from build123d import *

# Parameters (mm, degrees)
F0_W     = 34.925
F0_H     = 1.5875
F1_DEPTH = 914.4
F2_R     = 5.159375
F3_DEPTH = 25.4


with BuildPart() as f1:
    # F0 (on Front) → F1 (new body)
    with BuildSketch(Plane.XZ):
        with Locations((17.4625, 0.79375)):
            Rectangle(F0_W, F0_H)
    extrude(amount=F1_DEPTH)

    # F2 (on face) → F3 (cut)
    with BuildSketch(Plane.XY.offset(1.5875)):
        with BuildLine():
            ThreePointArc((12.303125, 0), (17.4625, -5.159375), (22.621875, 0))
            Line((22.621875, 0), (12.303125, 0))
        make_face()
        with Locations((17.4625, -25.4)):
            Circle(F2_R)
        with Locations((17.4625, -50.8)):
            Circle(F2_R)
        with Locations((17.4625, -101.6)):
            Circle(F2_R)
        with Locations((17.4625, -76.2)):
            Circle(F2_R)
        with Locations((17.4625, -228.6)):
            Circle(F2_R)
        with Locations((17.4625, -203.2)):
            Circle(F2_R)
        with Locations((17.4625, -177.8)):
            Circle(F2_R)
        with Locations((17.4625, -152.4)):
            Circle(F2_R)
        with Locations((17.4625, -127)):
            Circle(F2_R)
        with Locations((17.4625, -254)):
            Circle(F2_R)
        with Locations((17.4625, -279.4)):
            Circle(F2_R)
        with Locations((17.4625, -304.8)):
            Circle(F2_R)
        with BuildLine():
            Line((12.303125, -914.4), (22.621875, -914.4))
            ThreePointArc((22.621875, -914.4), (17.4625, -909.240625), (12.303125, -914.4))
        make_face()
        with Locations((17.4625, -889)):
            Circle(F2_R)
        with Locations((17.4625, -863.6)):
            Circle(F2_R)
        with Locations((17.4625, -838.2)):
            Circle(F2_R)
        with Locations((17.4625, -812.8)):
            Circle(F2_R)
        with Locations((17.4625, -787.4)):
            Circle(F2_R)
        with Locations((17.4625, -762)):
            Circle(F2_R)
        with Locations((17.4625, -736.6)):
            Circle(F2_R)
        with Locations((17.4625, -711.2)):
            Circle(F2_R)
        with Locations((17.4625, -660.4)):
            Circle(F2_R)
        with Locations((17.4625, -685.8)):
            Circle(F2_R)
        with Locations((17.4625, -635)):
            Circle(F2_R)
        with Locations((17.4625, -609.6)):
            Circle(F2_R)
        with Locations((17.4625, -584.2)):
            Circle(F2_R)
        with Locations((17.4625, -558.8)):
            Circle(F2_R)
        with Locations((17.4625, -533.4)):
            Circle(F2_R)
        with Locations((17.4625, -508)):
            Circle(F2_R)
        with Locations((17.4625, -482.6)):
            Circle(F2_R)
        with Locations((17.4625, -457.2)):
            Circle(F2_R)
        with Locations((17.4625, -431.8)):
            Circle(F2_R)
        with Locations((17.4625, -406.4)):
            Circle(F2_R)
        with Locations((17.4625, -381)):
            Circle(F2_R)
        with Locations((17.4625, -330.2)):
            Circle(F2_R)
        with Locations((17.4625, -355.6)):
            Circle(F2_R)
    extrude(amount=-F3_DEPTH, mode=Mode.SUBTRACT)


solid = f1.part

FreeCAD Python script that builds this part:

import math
import FreeCAD as App
import Part
import Sketcher
from FreeCAD import Vector
Q = App.Units.Quantity

doc = App.newDocument("Part")
body = doc.addObject("PartDesign::Body", "Body")

# Sketch on XZ plane
sketch1 = doc.addObject("Sketcher::SketchObject", "Sketch")
body.addObject(sketch1)
sketch1.AttachmentSupport = (doc.XZ_Plane, [""])
sketch1.MapMode = "FlatFace"
sketch1.addGeometry(Part.LineSegment(Vector(0, 1.6, 0), Vector(0, 0, 0)), False)
sketch1.addGeometry(Part.LineSegment(Vector(0, 0, 0), Vector(34.9, 0, 0)), False)
sketch1.addGeometry(Part.LineSegment(Vector(34.9, 0, 0), Vector(34.9, 1.6, 0)), False)
sketch1.addGeometry(Part.LineSegment(Vector(34.9, 1.6, 0), Vector(0, 1.6, 0)), False)
sketch1.addConstraint(Sketcher.Constraint("Coincident", 0, 2, 1, 1))
sketch1.addConstraint(Sketcher.Constraint("Coincident", 1, 2, 2, 1))
sketch1.addConstraint(Sketcher.Constraint("Coincident", 2, 2, 3, 1))
sketch1.addConstraint(Sketcher.Constraint("Coincident", 3, 2, 0, 1))
sketch1.addConstraint(Sketcher.Constraint("Vertical", 0))
sketch1.addConstraint(Sketcher.Constraint("Horizontal", 1))
sketch1.addConstraint(Sketcher.Constraint("Vertical", 2))
sketch1.addConstraint(Sketcher.Constraint("Horizontal", 3))
sketch1.addConstraint(Sketcher.Constraint("Coincident", 0, 2, -1, 1))
sketch1.addConstraint(Sketcher.Constraint("DistanceX", 1, 1, 1, 2, Q("1.375 in")))
sketch1.addConstraint(Sketcher.Constraint("DistanceY", 0, 2, 0, 1, Q("0.0625 in")))
pad1 = doc.addObject("PartDesign::Pad", "Pad")
body.addObject(pad1)
pad1.Profile = sketch1
pad1.Length = Q("36 in")

# Sketch on XY plane
sketch2 = doc.addObject("Sketcher::SketchObject", "Sketch001")
body.addObject(sketch2)
sketch2.AttachmentSupport = (doc.XY_Plane, [""])
sketch2.MapMode = "FlatFace"
sketch2.AttachmentOffset = App.Placement(Vector(0, 0, 0.0625 * 25.4), App.Rotation())
sketch2.addGeometry(Part.ArcOfCircle(Part.Circle(Vector(17, 0, 0), Vector(0, 0, 1), 5), math.radians(180), math.radians(360)), False)
sketch2.addGeometry(Part.LineSegment(Vector(23, 0, 0), Vector(12, 0, 0)), False)
sketch2.addGeometry(Part.Circle(Vector(17, -25, 0), Vector(0, 0, 1), 5), False)
sketch2.addGeometry(Part.Circle(Vector(17, -51, 0), Vector(0, 0, 1), 5), False)
sketch2.addGeometry(Part.Circle(Vector(17, -102, 0), Vector(0, 0, 1), 5), False)
sketch2.addGeometry(Part.Circle(Vector(17, -76, 0), Vector(0, 0, 1), 5), False)
sketch2.addGeometry(Part.Circle(Vector(17, -229, 0), Vector(0, 0, 1), 5), False)
sketch2.addGeometry(Part.Circle(Vector(17, -203, 0), Vector(0, 0, 1), 5), False)
sketch2.addGeometry(Part.Circle(Vector(17, -178, 0), Vector(0, 0, 1), 5), False)
sketch2.addGeometry(Part.Circle(Vector(17, -152, 0), Vector(0, 0, 1), 5), False)
sketch2.addGeometry(Part.Circle(Vector(17, -127, 0), Vector(0, 0, 1), 5), False)
sketch2.addGeometry(Part.Circle(Vector(17, -254, 0), Vector(0, 0, 1), 5), False)
sketch2.addGeometry(Part.Circle(Vector(17, -279, 0), Vector(0, 0, 1), 5), False)
sketch2.addGeometry(Part.Circle(Vector(17, -305, 0), Vector(0, 0, 1), 5), False)
sketch2.addGeometry(Part.LineSegment(Vector(12, -914, 0), Vector(23, -914, 0)), False)
sketch2.addGeometry(Part.ArcOfCircle(Part.Circle(Vector(17, -914, 0), Vector(0, 0, 1), 5), math.radians(0), math.radians(180)), False)
sketch2.addGeometry(Part.Circle(Vector(17, -889, 0), Vector(0, 0, 1), 5), False)
sketch2.addGeometry(Part.Circle(Vector(17, -864, 0), Vector(0, 0, 1), 5), False)
sketch2.addGeometry(Part.Circle(Vector(17, -838, 0), Vector(0, 0, 1), 5), False)
sketch2.addGeometry(Part.Circle(Vector(17, -813, 0), Vector(0, 0, 1), 5), False)
sketch2.addGeometry(Part.Circle(Vector(17, -787, 0), Vector(0, 0, 1), 5), False)
sketch2.addGeometry(Part.Circle(Vector(17, -762, 0), Vector(0, 0, 1), 5), False)
sketch2.addGeometry(Part.Circle(Vector(17, -737, 0), Vector(0, 0, 1), 5), False)
sketch2.addGeometry(Part.Circle(Vector(17, -711, 0), Vector(0, 0, 1), 5), False)
sketch2.addGeometry(Part.Circle(Vector(17, -660, 0), Vector(0, 0, 1), 5), False)
sketch2.addGeometry(Part.Circle(Vector(17, -686, 0), Vector(0, 0, 1), 5), False)
sketch2.addGeometry(Part.Circle(Vector(17, -635, 0), Vector(0, 0, 1), 5), False)
sketch2.addGeometry(Part.Circle(Vector(17, -610, 0), Vector(0, 0, 1), 5), False)
sketch2.addGeometry(Part.Circle(Vector(17, -584, 0), Vector(0, 0, 1), 5), False)
sketch2.addGeometry(Part.Circle(Vector(17, -559, 0), Vector(0, 0, 1), 5), False)
sketch2.addGeometry(Part.Circle(Vector(17, -533, 0), Vector(0, 0, 1), 5), False)
sketch2.addGeometry(Part.Circle(Vector(17, -508, 0), Vector(0, 0, 1), 5), False)
sketch2.addGeometry(Part.Circle(Vector(17, -483, 0), Vector(0, 0, 1), 5), False)
sketch2.addGeometry(Part.Circle(Vector(17, -457, 0), Vector(0, 0, 1), 5), False)
sketch2.addGeometry(Part.Circle(Vector(17, -432, 0), Vector(0, 0, 1), 5), False)
sketch2.addGeometry(Part.Circle(Vector(17, -406, 0), Vector(0, 0, 1), 5), False)
sketch2.addGeometry(Part.Circle(Vector(17, -381, 0), Vector(0, 0, 1), 5), False)
sketch2.addGeometry(Part.Circle(Vector(17, -330, 0), Vector(0, 0, 1), 5), False)
sketch2.addGeometry(Part.Circle(Vector(17, -356, 0), Vector(0, 0, 1), 5), False)
sketch2.addConstraint(Sketcher.Constraint("Coincident", 0, 1, 1, 2))
sketch2.addConstraint(Sketcher.Constraint("Coincident", 1, 1, 0, 2))
sketch2.addConstraint(Sketcher.Constraint("Coincident", 14, 1, 15, 2))
sketch2.addConstraint(Sketcher.Constraint("Coincident", 15, 1, 14, 2))
sketch2.addConstraint(Sketcher.Constraint("Horizontal", 1))
sketch2.addConstraint(Sketcher.Constraint("Horizontal", 14))
sketch2.addConstraint(Sketcher.Constraint("Equal", 0, 2))
sketch2.addConstraint(Sketcher.Constraint("Equal", 2, 3))
sketch2.addConstraint(Sketcher.Constraint("Equal", 3, 4))
sketch2.addConstraint(Sketcher.Constraint("Equal", 4, 5))
sketch2.addConstraint(Sketcher.Constraint("Equal", 5, 6))
sketch2.addConstraint(Sketcher.Constraint("Equal", 6, 7))
sketch2.addConstraint(Sketcher.Constraint("Equal", 7, 8))
sketch2.addConstraint(Sketcher.Constraint("Equal", 8, 9))
sketch2.addConstraint(Sketcher.Constraint("Equal", 9, 10))
sketch2.addConstraint(Sketcher.Constraint("Equal", 10, 11))
sketch2.addConstraint(Sketcher.Constraint("Equal", 11, 12))
sketch2.addConstraint(Sketcher.Constraint("Equal", 12, 13))
sketch2.addConstraint(Sketcher.Constraint("Equal", 13, 15))
sketch2.addConstraint(Sketcher.Constraint("Equal", 15, 16))
sketch2.addConstraint(Sketcher.Constraint("Equal", 16, 17))
sketch2.addConstraint(Sketcher.Constraint("Equal", 17, 18))
sketch2.addConstraint(Sketcher.Constraint("Equal", 18, 19))
sketch2.addConstraint(Sketcher.Constraint("Equal", 19, 20))
sketch2.addConstraint(Sketcher.Constraint("Equal", 20, 21))
sketch2.addConstraint(Sketcher.Constraint("Equal", 21, 22))
sketch2.addConstraint(Sketcher.Constraint("Equal", 22, 23))
sketch2.addConstraint(Sketcher.Constraint("Equal", 23, 24))
sketch2.addConstraint(Sketcher.Constraint("Equal", 24, 25))
sketch2.addConstraint(Sketcher.Constraint("Equal", 25, 26))
sketch2.addConstraint(Sketcher.Constraint("Equal", 26, 27))
sketch2.addConstraint(Sketcher.Constraint("Equal", 27, 28))
sketch2.addConstraint(Sketcher.Constraint("Equal", 28, 29))
sketch2.addConstraint(Sketcher.Constraint("Equal", 29, 30))
sketch2.addConstraint(Sketcher.Constraint("Equal", 30, 31))
sketch2.addConstraint(Sketcher.Constraint("Equal", 31, 32))
sketch2.addConstraint(Sketcher.Constraint("Equal", 32, 33))
sketch2.addConstraint(Sketcher.Constraint("Equal", 33, 34))
sketch2.addConstraint(Sketcher.Constraint("Equal", 34, 35))
sketch2.addConstraint(Sketcher.Constraint("Equal", 35, 36))
sketch2.addConstraint(Sketcher.Constraint("Equal", 36, 37))
sketch2.addConstraint(Sketcher.Constraint("Equal", 37, 38))
sketch2.addConstraint(Sketcher.Constraint("PointOnObject", 0, 3, -1))
sketch2.addConstraint(Sketcher.Constraint("PointOnObject", 0, 1, -1))
sketch2.addConstraint(Sketcher.Constraint("Horizontal", 15, 3, 14, 1))
sketch2.addConstraint(Sketcher.Constraint("Vertical", 0, 3, 2, 3))
sketch2.addConstraint(Sketcher.Constraint("Vertical", 2, 3, 3, 3))
sketch2.addConstraint(Sketcher.Constraint("Vertical", 3, 3, 4, 3))
sketch2.addConstraint(Sketcher.Constraint("Vertical", 4, 3, 5, 3))
sketch2.addConstraint(Sketcher.Constraint("Vertical", 5, 3, 6, 3))
sketch2.addConstraint(Sketcher.Constraint("Vertical", 6, 3, 7, 3))
sketch2.addConstraint(Sketcher.Constraint("Vertical", 7, 3, 8, 3))
sketch2.addConstraint(Sketcher.Constraint("Vertical", 8, 3, 9, 3))
sketch2.addConstraint(Sketcher.Constraint("Vertical", 9, 3, 10, 3))
sketch2.addConstraint(Sketcher.Constraint("Vertical", 10, 3, 11, 3))
sketch2.addConstraint(Sketcher.Constraint("Vertical", 11, 3, 12, 3))
sketch2.addConstraint(Sketcher.Constraint("Vertical", 12, 3, 13, 3))
sketch2.addConstraint(Sketcher.Constraint("Vertical", 13, 3, 15, 3))
sketch2.addConstraint(Sketcher.Constraint("Vertical", 15, 3, 16, 3))
sketch2.addConstraint(Sketcher.Constraint("Vertical", 16, 3, 17, 3))
sketch2.addConstraint(Sketcher.Constraint("Vertical", 17, 3, 18, 3))
sketch2.addConstraint(Sketcher.Constraint("Vertical", 18, 3, 19, 3))
sketch2.addConstraint(Sketcher.Constraint("Vertical", 19, 3, 20, 3))
sketch2.addConstraint(Sketcher.Constraint("Vertical", 20, 3, 21, 3))
sketch2.addConstraint(Sketcher.Constraint("Vertical", 21, 3, 22, 3))
sketch2.addConstraint(Sketcher.Constraint("Vertical", 22, 3, 23, 3))
sketch2.addConstraint(Sketcher.Constraint("Vertical", 23, 3, 24, 3))
sketch2.addConstraint(Sketcher.Constraint("Vertical", 24, 3, 25, 3))
sketch2.addConstraint(Sketcher.Constraint("Vertical", 25, 3, 26, 3))
sketch2.addConstraint(Sketcher.Constraint("Vertical", 26, 3, 27, 3))
sketch2.addConstraint(Sketcher.Constraint("Vertical", 27, 3, 28, 3))
sketch2.addConstraint(Sketcher.Constraint("Vertical", 28, 3, 29, 3))
sketch2.addConstraint(Sketcher.Constraint("Vertical", 29, 3, 30, 3))
sketch2.addConstraint(Sketcher.Constraint("Vertical", 30, 3, 31, 3))
sketch2.addConstraint(Sketcher.Constraint("Vertical", 31, 3, 32, 3))
sketch2.addConstraint(Sketcher.Constraint("Vertical", 32, 3, 33, 3))
sketch2.addConstraint(Sketcher.Constraint("Vertical", 33, 3, 34, 3))
sketch2.addConstraint(Sketcher.Constraint("Vertical", 34, 3, 35, 3))
sketch2.addConstraint(Sketcher.Constraint("Vertical", 35, 3, 36, 3))
sketch2.addConstraint(Sketcher.Constraint("Vertical", 36, 3, 37, 3))
sketch2.addConstraint(Sketcher.Constraint("Vertical", 37, 3, 38, 3))
sketch2.addConstraint(Sketcher.Constraint("Diameter", 2, Q("0.40625 in")))
sketch2.addConstraint(Sketcher.Constraint("DistanceY", 2, 3, -1, 1, Q("1 in")))
sketch2.addConstraint(Sketcher.Constraint("DistanceY", 3, 3, -1, 1, Q("2 in")))
sketch2.addConstraint(Sketcher.Constraint("DistanceY", 4, 3, -1, 1, Q("4 in")))
sketch2.addConstraint(Sketcher.Constraint("DistanceY", 5, 3, -1, 1, Q("3 in")))
sketch2.addConstraint(Sketcher.Constraint("DistanceY", 6, 3, -1, 1, Q("9 in")))
sketch2.addConstraint(Sketcher.Constraint("DistanceY", 7, 3, -1, 1, Q("8 in")))
sketch2.addConstraint(Sketcher.Constraint("DistanceY", 8, 3, -1, 1, Q("7 in")))
sketch2.addConstraint(Sketcher.Constraint("DistanceY", 9, 3, -1, 1, Q("6 in")))
sketch2.addConstraint(Sketcher.Constraint("DistanceY", 10, 3, -1, 1, Q("5 in")))
sketch2.addConstraint(Sketcher.Constraint("DistanceY", 11, 3, -1, 1, Q("10 in")))
sketch2.addConstraint(Sketcher.Constraint("DistanceY", 12, 3, -1, 1, Q("11 in")))
sketch2.addConstraint(Sketcher.Constraint("DistanceY", 13, 3, -1, 1, Q("12 in")))
sketch2.addConstraint(Sketcher.Constraint("DistanceY", 15, 3, -1, 1, Q("36 in")))
sketch2.addConstraint(Sketcher.Constraint("DistanceY", 16, 3, -1, 1, Q("35 in")))
sketch2.addConstraint(Sketcher.Constraint("DistanceY", 17, 3, -1, 1, Q("34 in")))
sketch2.addConstraint(Sketcher.Constraint("DistanceY", 18, 3, -1, 1, Q("33 in")))
sketch2.addConstraint(Sketcher.Constraint("DistanceY", 19, 3, -1, 1, Q("32 in")))
sketch2.addConstraint(Sketcher.Constraint("DistanceY", 20, 3, -1, 1, Q("31 in")))
sketch2.addConstraint(Sketcher.Constraint("DistanceY", 21, 3, -1, 1, Q("30 in")))
sketch2.addConstraint(Sketcher.Constraint("DistanceY", 22, 3, -1, 1, Q("29 in")))
sketch2.addConstraint(Sketcher.Constraint("DistanceY", 23, 3, -1, 1, Q("28 in")))
sketch2.addConstraint(Sketcher.Constraint("DistanceY", 24, 3, -1, 1, Q("26 in")))
sketch2.addConstraint(Sketcher.Constraint("DistanceY", 25, 3, -1, 1, Q("27 in")))
sketch2.addConstraint(Sketcher.Constraint("DistanceY", 26, 3, -1, 1, Q("25 in")))
sketch2.addConstraint(Sketcher.Constraint("DistanceY", 27, 3, -1, 1, Q("24 in")))
sketch2.addConstraint(Sketcher.Constraint("DistanceY", 28, 3, -1, 1, Q("23 in")))
sketch2.addConstraint(Sketcher.Constraint("DistanceY", 29, 3, -1, 1, Q("22 in")))
sketch2.addConstraint(Sketcher.Constraint("DistanceY", 30, 3, -1, 1, Q("21 in")))
sketch2.addConstraint(Sketcher.Constraint("DistanceY", 31, 3, -1, 1, Q("20 in")))
sketch2.addConstraint(Sketcher.Constraint("DistanceY", 32, 3, -1, 1, Q("19 in")))
sketch2.addConstraint(Sketcher.Constraint("DistanceY", 33, 3, -1, 1, Q("18 in")))
sketch2.addConstraint(Sketcher.Constraint("DistanceY", 34, 3, -1, 1, Q("17 in")))
sketch2.addConstraint(Sketcher.Constraint("DistanceY", 35, 3, -1, 1, Q("16 in")))
sketch2.addConstraint(Sketcher.Constraint("DistanceY", 36, 3, -1, 1, Q("15 in")))
sketch2.addConstraint(Sketcher.Constraint("DistanceY", 37, 3, -1, 1, Q("13 in")))
sketch2.addConstraint(Sketcher.Constraint("DistanceY", 38, 3, -1, 1, Q("14 in")))
sketch2.addConstraint(Sketcher.Constraint("DistanceX", -1, 1, 0, 3, Q("0.6875 in")))
pocket1 = doc.addObject("PartDesign::Pocket", "Pocket")
body.addObject(pocket1)
pocket1.Profile = sketch2
pocket1.Length = Q("1 in")

doc.recompute()
